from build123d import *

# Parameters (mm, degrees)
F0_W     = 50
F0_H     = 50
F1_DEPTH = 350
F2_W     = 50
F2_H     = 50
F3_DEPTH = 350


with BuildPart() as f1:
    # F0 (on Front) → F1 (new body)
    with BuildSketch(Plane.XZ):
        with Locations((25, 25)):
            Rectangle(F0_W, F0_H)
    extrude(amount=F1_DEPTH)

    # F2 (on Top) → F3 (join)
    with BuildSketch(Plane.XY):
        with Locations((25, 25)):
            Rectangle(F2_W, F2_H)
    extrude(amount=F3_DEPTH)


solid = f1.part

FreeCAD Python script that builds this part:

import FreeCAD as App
import Part
import Sketcher

V = App.Vector
Q = App.Units.Quantity

doc = App.newDocument("Part")
body = doc.addObject("PartDesign::Body", "Body")

# Sketch on XZ plane
sketch1 = body.newObject("Sketcher::SketchObject", "Sketch")
sketch1.AttachmentSupport = (doc.getObject("XZ_Plane"), [""])
sketch1.MapMode = "FlatFace"
sketch1.addGeometry([
    Part.LineSegment(V(0, 50, 0), V(0, 0, 0)),
    Part.LineSegment(V(0, 0, 0), V(50, 0, 0)),
    Part.LineSegment(V(50, 0, 0), V(50, 50, 0)),
    Part.LineSegment(V(50, 50, 0), V(0, 50, 0)),
], False)
sketch1.addConstraint([
    Sketcher.Constraint("Coincident", 0, 2, 1, 1),
    Sketcher.Constraint("Coincident", 1, 2, 2, 1),
    Sketcher.Constraint("Coincident", 2, 2, 3, 1),
    Sketcher.Constraint("Coincident", 3, 2, 0, 1),
    Sketcher.Constraint("Vertical", 0),
    Sketcher.Constraint("Horizontal", 1),
    Sketcher.Constraint("Vertical", 2),
    Sketcher.Constraint("Horizontal", 3),
    Sketcher.Constraint("Coincident", 0, 2, -1, 1),
    Sketcher.Constraint("Equal", 3, 0),
    Sketcher.Constraint("DistanceX", 1, 1, 1, 2, Q("50 mm")),
])
pad1 = body.newObject("PartDesign::Pad", "Pad")
pad1.Profile = sketch1
pad1.Length = 350

# Sketch on XY plane
sketch2 = body.newObject("Sketcher::SketchObject", "Sketch001")
sketch2.AttachmentSupport = (doc.getObject("XY_Plane"), [""])
sketch2.MapMode = "FlatFace"
sketch2.addGeometry([
    Part.LineSegment(V(0, 50, 0), V(0, 0, 0)),
    Part.LineSegment(V(0, 0, 0), V(50, 0, 0)),
    Part.LineSegment(V(50, 0, 0), V(50, 50, 0)),
    Part.LineSegment(V(50, 50, 0), V(0, 50, 0)),
], False)
sketch2.addConstraint([
    Sketcher.Constraint("Coincident", 0, 2, 1, 1),
    Sketcher.Constraint("Coincident", 1, 2, 2, 1),
    Sketcher.Constraint("Coincident", 2, 2, 3, 1),
    Sketcher.Constraint("Coincident", 3, 2, 0, 1),
    Sketcher.Constraint("Vertical", 0),
    Sketcher.Constraint("Horizontal", 1),
    Sketcher.Constraint("Vertical", 2),
    Sketcher.Constraint("Horizontal", 3),
    Sketcher.Constraint("Coincident", 0, 2, -1, 1),
    Sketcher.Constraint("Equal", 3, 0),
    Sketcher.Constraint("DistanceX", 1, 1, 1, 2, Q("50 mm")),
])
pad2 = body.newObject("PartDesign::Pad", "Pad001")
pad2.Profile = sketch2
pad2.Length = 350

doc.recompute()
